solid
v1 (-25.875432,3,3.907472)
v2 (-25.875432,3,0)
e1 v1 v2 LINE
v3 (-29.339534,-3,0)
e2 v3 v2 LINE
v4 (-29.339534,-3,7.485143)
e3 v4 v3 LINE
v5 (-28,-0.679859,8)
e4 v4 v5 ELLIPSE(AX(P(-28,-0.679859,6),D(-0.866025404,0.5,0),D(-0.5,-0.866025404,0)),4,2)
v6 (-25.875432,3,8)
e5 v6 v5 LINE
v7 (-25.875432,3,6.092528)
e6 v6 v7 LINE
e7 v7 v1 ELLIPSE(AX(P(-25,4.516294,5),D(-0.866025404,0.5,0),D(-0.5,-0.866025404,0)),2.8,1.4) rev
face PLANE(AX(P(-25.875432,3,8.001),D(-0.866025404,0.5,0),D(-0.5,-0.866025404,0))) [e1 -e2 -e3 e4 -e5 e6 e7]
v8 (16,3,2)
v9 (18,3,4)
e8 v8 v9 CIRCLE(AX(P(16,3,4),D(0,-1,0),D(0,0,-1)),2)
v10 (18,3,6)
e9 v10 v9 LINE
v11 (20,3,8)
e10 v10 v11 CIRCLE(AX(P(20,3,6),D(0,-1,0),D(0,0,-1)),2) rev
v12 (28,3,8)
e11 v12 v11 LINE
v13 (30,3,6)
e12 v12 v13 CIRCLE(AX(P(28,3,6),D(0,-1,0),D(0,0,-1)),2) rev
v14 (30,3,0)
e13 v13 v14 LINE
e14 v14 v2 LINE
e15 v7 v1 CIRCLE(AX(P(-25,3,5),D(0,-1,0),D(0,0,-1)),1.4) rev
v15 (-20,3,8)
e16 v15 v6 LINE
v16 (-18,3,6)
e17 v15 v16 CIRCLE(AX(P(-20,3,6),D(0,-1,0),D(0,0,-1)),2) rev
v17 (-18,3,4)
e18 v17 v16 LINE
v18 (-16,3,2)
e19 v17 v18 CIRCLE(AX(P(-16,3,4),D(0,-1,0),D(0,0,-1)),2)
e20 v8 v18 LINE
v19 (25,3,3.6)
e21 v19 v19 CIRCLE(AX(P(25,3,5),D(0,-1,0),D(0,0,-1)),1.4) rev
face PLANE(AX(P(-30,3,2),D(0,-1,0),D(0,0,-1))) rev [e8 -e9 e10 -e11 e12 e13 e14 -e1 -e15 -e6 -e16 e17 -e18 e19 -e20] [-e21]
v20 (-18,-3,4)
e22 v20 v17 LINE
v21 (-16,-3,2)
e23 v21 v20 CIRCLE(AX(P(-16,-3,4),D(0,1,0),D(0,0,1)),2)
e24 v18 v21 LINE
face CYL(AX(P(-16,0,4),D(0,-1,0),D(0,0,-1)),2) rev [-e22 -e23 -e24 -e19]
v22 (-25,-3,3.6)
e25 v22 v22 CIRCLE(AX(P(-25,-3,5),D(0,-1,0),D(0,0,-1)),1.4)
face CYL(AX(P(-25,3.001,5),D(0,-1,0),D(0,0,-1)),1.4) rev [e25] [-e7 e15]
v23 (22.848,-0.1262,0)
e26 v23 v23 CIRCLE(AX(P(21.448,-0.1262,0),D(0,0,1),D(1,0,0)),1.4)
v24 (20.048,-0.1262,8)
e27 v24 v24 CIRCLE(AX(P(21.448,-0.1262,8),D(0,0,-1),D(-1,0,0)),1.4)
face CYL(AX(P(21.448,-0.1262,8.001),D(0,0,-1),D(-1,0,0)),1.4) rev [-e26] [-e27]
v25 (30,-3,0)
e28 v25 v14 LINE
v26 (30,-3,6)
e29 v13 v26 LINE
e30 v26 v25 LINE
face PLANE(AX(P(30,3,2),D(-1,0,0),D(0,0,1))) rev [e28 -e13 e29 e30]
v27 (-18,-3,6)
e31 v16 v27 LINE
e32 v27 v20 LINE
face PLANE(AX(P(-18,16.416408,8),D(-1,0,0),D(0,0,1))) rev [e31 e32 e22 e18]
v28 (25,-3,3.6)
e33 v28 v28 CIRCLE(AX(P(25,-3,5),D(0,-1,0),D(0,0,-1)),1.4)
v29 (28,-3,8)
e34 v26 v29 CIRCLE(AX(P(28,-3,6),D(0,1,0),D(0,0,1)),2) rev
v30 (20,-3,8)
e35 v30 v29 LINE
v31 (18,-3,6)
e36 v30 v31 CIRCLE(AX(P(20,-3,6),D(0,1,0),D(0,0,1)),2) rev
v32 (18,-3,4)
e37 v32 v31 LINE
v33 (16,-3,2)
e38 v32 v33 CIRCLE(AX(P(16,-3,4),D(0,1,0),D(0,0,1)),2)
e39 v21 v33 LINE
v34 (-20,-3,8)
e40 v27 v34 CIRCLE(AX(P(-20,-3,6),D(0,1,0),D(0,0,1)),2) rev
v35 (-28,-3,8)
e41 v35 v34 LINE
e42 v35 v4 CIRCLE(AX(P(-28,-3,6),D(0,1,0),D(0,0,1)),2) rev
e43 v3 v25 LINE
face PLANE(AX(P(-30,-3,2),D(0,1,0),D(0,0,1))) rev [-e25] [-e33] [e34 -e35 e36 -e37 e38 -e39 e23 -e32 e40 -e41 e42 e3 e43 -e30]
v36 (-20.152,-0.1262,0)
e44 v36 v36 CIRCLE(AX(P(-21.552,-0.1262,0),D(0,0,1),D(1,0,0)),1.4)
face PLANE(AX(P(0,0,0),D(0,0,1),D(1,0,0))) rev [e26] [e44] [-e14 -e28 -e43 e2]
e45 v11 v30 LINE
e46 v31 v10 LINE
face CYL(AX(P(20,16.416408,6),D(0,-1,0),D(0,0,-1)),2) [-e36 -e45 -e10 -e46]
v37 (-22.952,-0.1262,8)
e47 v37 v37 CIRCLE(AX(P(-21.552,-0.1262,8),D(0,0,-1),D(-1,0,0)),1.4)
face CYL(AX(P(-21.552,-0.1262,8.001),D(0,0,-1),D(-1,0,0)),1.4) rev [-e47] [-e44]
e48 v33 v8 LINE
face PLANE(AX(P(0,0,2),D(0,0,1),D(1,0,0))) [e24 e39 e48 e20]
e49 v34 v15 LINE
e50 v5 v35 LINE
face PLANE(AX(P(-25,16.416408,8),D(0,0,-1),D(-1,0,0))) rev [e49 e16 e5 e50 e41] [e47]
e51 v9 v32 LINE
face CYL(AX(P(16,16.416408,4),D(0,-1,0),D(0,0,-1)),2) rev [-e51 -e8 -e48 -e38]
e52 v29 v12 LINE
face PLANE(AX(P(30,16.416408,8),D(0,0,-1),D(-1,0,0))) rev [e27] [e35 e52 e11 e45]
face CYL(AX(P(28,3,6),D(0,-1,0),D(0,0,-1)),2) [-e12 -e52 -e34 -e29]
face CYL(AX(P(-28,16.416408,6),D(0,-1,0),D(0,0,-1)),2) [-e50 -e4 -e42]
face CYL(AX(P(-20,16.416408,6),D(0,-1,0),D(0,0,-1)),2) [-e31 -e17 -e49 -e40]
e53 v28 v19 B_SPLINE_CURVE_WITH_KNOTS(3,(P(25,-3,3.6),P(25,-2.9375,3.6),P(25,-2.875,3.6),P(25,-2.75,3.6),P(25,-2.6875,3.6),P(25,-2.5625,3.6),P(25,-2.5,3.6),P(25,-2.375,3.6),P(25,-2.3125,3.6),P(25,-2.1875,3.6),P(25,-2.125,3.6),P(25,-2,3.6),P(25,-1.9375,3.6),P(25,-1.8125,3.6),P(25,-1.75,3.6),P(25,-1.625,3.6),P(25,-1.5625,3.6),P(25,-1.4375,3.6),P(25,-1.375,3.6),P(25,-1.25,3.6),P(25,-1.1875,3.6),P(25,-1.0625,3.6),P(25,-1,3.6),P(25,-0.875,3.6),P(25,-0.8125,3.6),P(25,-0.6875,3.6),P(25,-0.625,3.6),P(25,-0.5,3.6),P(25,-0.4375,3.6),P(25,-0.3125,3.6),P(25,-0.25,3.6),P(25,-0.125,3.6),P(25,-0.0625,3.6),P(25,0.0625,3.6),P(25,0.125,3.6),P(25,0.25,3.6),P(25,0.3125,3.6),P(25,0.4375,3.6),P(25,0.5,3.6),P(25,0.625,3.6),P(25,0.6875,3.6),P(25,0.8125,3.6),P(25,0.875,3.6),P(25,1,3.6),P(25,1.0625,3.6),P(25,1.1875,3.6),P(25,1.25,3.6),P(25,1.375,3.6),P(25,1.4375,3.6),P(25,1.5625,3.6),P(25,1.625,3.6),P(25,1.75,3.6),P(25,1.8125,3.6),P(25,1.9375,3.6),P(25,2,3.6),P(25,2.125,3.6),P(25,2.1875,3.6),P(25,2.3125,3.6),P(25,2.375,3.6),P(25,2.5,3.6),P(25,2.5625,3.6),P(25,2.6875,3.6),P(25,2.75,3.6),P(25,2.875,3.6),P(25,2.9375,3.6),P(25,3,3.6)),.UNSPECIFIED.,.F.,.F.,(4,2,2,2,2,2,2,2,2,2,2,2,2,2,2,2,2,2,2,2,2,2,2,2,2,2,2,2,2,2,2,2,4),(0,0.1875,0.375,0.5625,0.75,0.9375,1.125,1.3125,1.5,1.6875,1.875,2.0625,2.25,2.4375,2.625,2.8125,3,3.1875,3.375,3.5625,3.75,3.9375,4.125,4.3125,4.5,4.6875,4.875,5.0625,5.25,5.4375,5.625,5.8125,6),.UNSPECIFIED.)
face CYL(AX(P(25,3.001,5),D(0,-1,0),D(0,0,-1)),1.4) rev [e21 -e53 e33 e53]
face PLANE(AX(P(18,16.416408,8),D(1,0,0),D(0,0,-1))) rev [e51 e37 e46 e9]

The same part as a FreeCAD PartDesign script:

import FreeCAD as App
import Part
import Sketcher

V = App.Vector
Q = App.Units.Quantity


def edges_at(feature, points):
    """Names of the edges that pass closest to the given points."""
    edges = feature.Shape.Edges
    near = lambda p: min(range(len(edges)), key=lambda i: edges[i].distToShape(Part.Vertex(*p))[0])
    return sorted({f"Edge{near(p) + 1}" for p in points})

doc = App.newDocument("Part")
body = doc.addObject("PartDesign::Body", "Body")

# Sketch on XY plane
sketch1 = doc.addObject("Sketcher::SketchObject", "Sketch")
body.addObject(sketch1)
sketch1.AttachmentSupport = (doc.XY_Plane, [""])
sketch1.MapMode = "FlatFace"
sketch1.addGeometry(Part.LineSegment(V(-30, 3, 0), V(-30, -3, 0)), False)
sketch1.addGeometry(Part.LineSegment(V(-30, -3, 0), V(30, -3, 0)), False)
sketch1.addGeometry(Part.LineSegment(V(30, -3, 0), V(30, 3, 0)), False)
sketch1.addGeometry(Part.LineSegment(V(30, 3, 0), V(-30, 3, 0)), False)
sketch1.addConstraint(Sketcher.Constraint("Coincident", 0, 2, 1, 1))
sketch1.addConstraint(Sketcher.Constraint("Coincident", 1, 2, 2, 1))
sketch1.addConstraint(Sketcher.Constraint("Coincident", 2, 2, 3, 1))
sketch1.addConstraint(Sketcher.Constraint("Coincident", 3, 2, 0, 1))
sketch1.addConstraint(Sketcher.Constraint("Vertical", 0))
sketch1.addConstraint(Sketcher.Constraint("Horizontal", 1))
sketch1.addConstraint(Sketcher.Constraint("Vertical", 2))
sketch1.addConstraint(Sketcher.Constraint("Horizontal", 3))
sketch1.addConstraint(Sketcher.Constraint("Symmetric", 0, 2, 2, 2, -1, 1))
sketch1.addConstraint(Sketcher.Constraint("DistanceX", 1, 1, 1, 2, Q("60 mm")))
sketch1.addConstraint(Sketcher.Constraint("DistanceY", 0, 2, 0, 1, Q("6 mm")))
pad1 = doc.addObject("PartDesign::Pad", "Pad")
body.addObject(pad1)
pad1.Profile = sketch1
pad1.Length = 2

# Sketch on XZ plane
sketch2 = doc.addObject("Sketcher::SketchObject", "Sketch001")
body.addObject(sketch2)
sketch2.AttachmentSupport = (doc.XZ_Plane, [""])
sketch2.MapMode = "FlatFace"
sketch2.AttachmentOffset = App.Placement(V(0, 0, 3), App.Rotation())
sketch2.addGeometry(Part.LineSegment(V(-18, 2, 0), V(-30, 2, 0)), False)
sketch2.addGeometry(Part.LineSegment(V(-30, 2, 0), V(-30, 8, 0)), False)
sketch2.addGeometry(Part.LineSegment(V(-30, 8, 0), V(-18, 8, 0)), False)
sketch2.addGeometry(Part.LineSegment(V(-18, 8, 0), V(-18, 2, 0)), False)
sketch2.addGeometry(Part.LineSegment(V(30, 8, 0), V(30, 2, 0)), False)
sketch2.addGeometry(Part.LineSegment(V(30, 2, 0), V(18, 2, 0)), False)
sketch2.addGeometry(Part.LineSegment(V(18, 2, 0), V(18, 8, 0)), False)
sketch2.addGeometry(Part.LineSegment(V(18, 8, 0), V(30, 8, 0)), False)
sketch2.addConstraint(Sketcher.Constraint("Coincident", 0, 2, 1, 1))
sketch2.addConstraint(Sketcher.Constraint("Coincident", 1, 2, 2, 1))
sketch2.addConstraint(Sketcher.Constraint("Coincident", 2, 2, 3, 1))
sketch2.addConstraint(Sketcher.Constraint("Coincident", 3, 2, 0, 1))
sketch2.addConstraint(Sketcher.Constraint("Coincident", 4, 2, 5, 1))
sketch2.addConstraint(Sketcher.Constraint("Coincident", 5, 2, 6, 1))
sketch2.addConstraint(Sketcher.Constraint("Coincident", 6, 2, 7, 1))
sketch2.addConstraint(Sketcher.Constraint("Coincident", 7, 2, 4, 1))
sketch2.addConstraint(Sketcher.Constraint("Horizontal", 0))
sketch2.addConstraint(Sketcher.Constraint("Vertical", 1))
sketch2.addConstraint(Sketcher.Constraint("Horizontal", 2))
sketch2.addConstraint(Sketcher.Constraint("Vertical", 3))
sketch2.addConstraint(Sketcher.Constraint("Vertical", 4))
sketch2.addConstraint(Sketcher.Constraint("Horizontal", 5))
sketch2.addConstraint(Sketcher.Constraint("Vertical", 6))
sketch2.addConstraint(Sketcher.Constraint("Horizontal", 7))
sketch2.addConstraint(Sketcher.Constraint("Symmetric", 0, 2, 4, 2, -2))
sketch2.addConstraint(Sketcher.Constraint("Symmetric", 2, 2, 6, 2, -2))
sketch2.addConstraint(Sketcher.Constraint("DistanceX", 0, 2, 0, 1, Q("12 mm")))
sketch2.addConstraint(Sketcher.Constraint("DistanceY", 1, 1, 1, 2, Q("6 mm")))
sketch2.addConstraint(Sketcher.Constraint("DistanceX", 0, 2, -1, 1, Q("30 mm")))
sketch2.addConstraint(Sketcher.Constraint("DistanceY", -1, 1, 0, 2, Q("2 mm")))
pad2 = doc.addObject("PartDesign::Pad", "Pad001")
body.addObject(pad2)
pad2.Profile = sketch2
pad2.Length = 6
pad2.Reversed = True
doc.recompute()

fillet = doc.addObject("PartDesign::Fillet", "Fillet")
body.addObject(fillet)
fillet.Base = (pad2, edges_at(pad2, [
    (-18, 0, 2),
    (-18, 0, 8),
    (-30, 0, 8),
    (30, 0, 8),
    (18, 0, 8),
    (18, 0, 2),
]))
fillet.Radius = 2

# Sketch on XY plane
sketch3 = doc.addObject("Sketcher::SketchObject", "Sketch002")
body.addObject(sketch3)
sketch3.AttachmentSupport = (doc.XY_Plane, [""])
sketch3.MapMode = "FlatFace"
sketch3.addGeometry(Part.LineSegment(V(-29.3, -3, 0), V(-25.9, 3, 0)), False)
sketch3.addGeometry(Part.LineSegment(V(-25.9, 3, 0), V(-30, 3, 0)), False)
sketch3.addGeometry(Part.LineSegment(V(-30, 3, 0), V(-30, -3, 0)), False)
sketch3.addGeometry(Part.LineSegment(V(-30, -3, 0), V(-29.3, -3, 0)), False)
sketch3.addConstraint(Sketcher.Constraint("Coincident", 0, 2, 1, 1))
sketch3.addConstraint(Sketcher.Constraint("Coincident", 1, 2, 2, 1))
sketch3.addConstraint(Sketcher.Constraint("Coincident", 2, 2, 3, 1))
sketch3.addConstraint(Sketcher.Constraint("Coincident", 3, 2, 0, 1))
sketch3.addConstraint(Sketcher.Constraint("Horizontal", 1))
sketch3.addConstraint(Sketcher.Constraint("Vertical", 2))
sketch3.addConstraint(Sketcher.Constraint("Horizontal", 3))
sketch3.addConstraint(Sketcher.Constraint("DistanceY", 2, 2, 2, 1, Q("6 mm")))
sketch3.addConstraint(Sketcher.Constraint("Angle", 0, Q("60 deg")))
sketch3.addConstraint(Sketcher.Constraint("DistanceY", -1, 1, 0, 2, Q("3 mm")))
sketch3.addConstraint(Sketcher.Constraint("DistanceX", 1, 2, -1, 1, Q("30 mm")))
sketch3.addConstraint(Sketcher.Constraint("DistanceX", 1, 2, 1, 1, Q("4.124568 mm")))
pocket1 = doc.addObject("PartDesign::Pocket", "Pocket")
body.addObject(pocket1)
pocket1.Profile = sketch3
pocket1.Type = "UpToFirst"
pocket1.Reversed = True

# Sketch on XZ plane
sketch4 = doc.addObject("Sketcher::SketchObject", "Sketch003")
body.addObject(sketch4)
sketch4.AttachmentSupport = (doc.XZ_Plane, [""])
sketch4.MapMode = "FlatFace"
sketch4.AttachmentOffset = App.Placement(V(0, 0, 3), App.Rotation())
sketch4.addGeometry(Part.Circle(V(25, 5, 0), V(0, 0, 1), 1.4), False)
sketch4.addConstraint(Sketcher.Constraint("Diameter", 0, Q("2.8 mm")))
sketch4.addConstraint(Sketcher.Constraint("DistanceX", -1, 1, 0, 3, Q("25 mm")))
sketch4.addConstraint(Sketcher.Constraint("DistanceY", -1, 1, 0, 3, Q("5 mm")))
pocket2 = doc.addObject("PartDesign::Pocket", "Pocket001")
body.addObject(pocket2)
pocket2.Profile = sketch4
pocket2.Type = "UpToFirst"

# Sketch on XZ plane
sketch5 = doc.addObject("Sketcher::SketchObject", "Sketch004")
body.addObject(sketch5)
sketch5.AttachmentSupport = (doc.XZ_Plane, [""])
sketch5.MapMode = "FlatFace"
sketch5.AttachmentOffset = App.Placement(V(0, 0, 3), App.Rotation())
sketch5.addGeometry(Part.Circle(V(-25, 5, 0), V(0, 0, 1), 1.4), False)
sketch5.addConstraint(Sketcher.Constraint("Diameter", 0, Q("2.8 mm")))
sketch5.addConstraint(Sketcher.Constraint("DistanceX", 0, 3, -1, 1, Q("25 mm")))
sketch5.addConstraint(Sketcher.Constraint("DistanceY", -1, 1, 0, 3, Q("5 mm")))
pocket3 = doc.addObject("PartDesign::Pocket", "Pocket002")
body.addObject(pocket3)
pocket3.Profile = sketch5
pocket3.Type = "UpToFirst"

# Sketch on XY plane
sketch6 = doc.addObject("Sketcher::SketchObject", "Sketch005")
body.addObject(sketch6)
sketch6.AttachmentSupport = (doc.XY_Plane, [""])
sketch6.MapMode = "FlatFace"
sketch6.addGeometry(Part.Circle(V(21.4, -0.1, 0), V(0, 0, 1), 1.4), False)
sketch6.addConstraint(Sketcher.Constraint("Diameter", 0, Q("2.8 mm")))
sketch6.addConstraint(Sketcher.Constraint("DistanceX", -1, 1, 0, 3, Q("21.448 mm")))
sketch6.addConstraint(Sketcher.Constraint("DistanceY", 0, 3, -1, 1, Q("0.1262 mm")))
pocket4 = doc.addObject("PartDesign::Pocket", "Pocket003")
body.addObject(pocket4)
pocket4.Profile = sketch6
pocket4.Type = "UpToFirst"
pocket4.Reversed = True

# Sketch on XY plane
sketch7 = doc.addObject("Sketcher::SketchObject", "Sketch006")
body.addObject(sketch7)
sketch7.AttachmentSupport = (doc.XY_Plane, [""])
sketch7.MapMode = "FlatFace"
sketch7.addGeometry(Part.Circle(V(-21.6, -0.1, 0), V(0, 0, 1), 1.4), False)
sketch7.addConstraint(Sketcher.Constraint("Diameter", 0, Q("2.8 mm")))
sketch7.addConstraint(Sketcher.Constraint("DistanceX", 0, 3, -1, 1, Q("21.552 mm")))
sketch7.addConstraint(Sketcher.Constraint("DistanceY", 0, 3, -1, 1, Q("0.1262 mm")))
pocket5 = doc.addObject("PartDesign::Pocket", "Pocket004")
body.addObject(pocket5)
pocket5.Profile = sketch7
pocket5.Type = "UpToFirst"
pocket5.Reversed = True

doc.recompute()
